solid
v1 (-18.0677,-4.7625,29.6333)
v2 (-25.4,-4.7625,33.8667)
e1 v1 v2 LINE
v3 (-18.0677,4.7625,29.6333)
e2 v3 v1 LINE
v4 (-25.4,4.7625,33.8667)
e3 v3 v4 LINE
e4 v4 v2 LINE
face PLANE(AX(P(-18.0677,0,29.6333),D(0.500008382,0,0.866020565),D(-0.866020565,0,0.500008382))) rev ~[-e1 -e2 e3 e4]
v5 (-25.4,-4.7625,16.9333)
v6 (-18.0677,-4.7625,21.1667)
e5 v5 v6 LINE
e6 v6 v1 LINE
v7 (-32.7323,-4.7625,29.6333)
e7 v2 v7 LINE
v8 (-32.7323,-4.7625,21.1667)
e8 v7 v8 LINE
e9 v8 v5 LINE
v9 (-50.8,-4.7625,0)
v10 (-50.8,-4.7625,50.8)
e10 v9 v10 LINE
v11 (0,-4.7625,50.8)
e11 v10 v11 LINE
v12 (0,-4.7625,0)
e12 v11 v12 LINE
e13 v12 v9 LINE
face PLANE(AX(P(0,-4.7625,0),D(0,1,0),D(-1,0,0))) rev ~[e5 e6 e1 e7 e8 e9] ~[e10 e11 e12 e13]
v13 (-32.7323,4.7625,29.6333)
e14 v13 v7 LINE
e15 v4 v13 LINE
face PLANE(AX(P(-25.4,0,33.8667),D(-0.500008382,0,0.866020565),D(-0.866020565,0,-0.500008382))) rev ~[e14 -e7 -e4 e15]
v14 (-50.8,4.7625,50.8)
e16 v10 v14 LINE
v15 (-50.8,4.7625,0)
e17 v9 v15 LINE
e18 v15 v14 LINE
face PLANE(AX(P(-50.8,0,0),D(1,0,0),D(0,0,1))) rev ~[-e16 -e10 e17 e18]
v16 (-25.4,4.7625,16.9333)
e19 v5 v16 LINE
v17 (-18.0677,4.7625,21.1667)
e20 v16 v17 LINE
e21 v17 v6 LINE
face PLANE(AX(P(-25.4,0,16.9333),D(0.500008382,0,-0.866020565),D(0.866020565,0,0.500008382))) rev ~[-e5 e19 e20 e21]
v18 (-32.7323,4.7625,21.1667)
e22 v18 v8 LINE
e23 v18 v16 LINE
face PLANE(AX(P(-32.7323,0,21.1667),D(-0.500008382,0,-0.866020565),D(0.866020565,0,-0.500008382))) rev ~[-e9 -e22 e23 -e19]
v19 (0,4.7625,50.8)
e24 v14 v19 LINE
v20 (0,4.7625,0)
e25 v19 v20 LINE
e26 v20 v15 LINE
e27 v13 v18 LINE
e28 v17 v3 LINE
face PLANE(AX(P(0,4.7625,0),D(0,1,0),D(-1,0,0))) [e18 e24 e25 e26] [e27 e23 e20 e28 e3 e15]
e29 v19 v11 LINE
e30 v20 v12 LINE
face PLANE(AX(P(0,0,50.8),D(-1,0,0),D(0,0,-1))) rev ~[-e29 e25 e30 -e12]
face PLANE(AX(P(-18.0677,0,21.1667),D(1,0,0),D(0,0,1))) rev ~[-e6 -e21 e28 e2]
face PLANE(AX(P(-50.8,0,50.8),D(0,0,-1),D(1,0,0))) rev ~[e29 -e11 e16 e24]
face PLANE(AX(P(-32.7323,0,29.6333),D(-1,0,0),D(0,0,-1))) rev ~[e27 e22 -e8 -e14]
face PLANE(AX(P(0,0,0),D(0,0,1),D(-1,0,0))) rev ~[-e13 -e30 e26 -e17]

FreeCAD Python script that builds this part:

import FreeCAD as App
import Part
import Sketcher
from FreeCAD import Vector
Q = App.Units.Quantity

doc = App.newDocument("Part")
body = doc.addObject("PartDesign::Body", "Body")

sketch1 = doc.addObject("Sketcher::SketchObject", "Sketch")
body.addObject(sketch1)
sketch1.AttachmentSupport = (doc.XZ_Plane, [""])
sketch1.MapMode = "FlatFace"
sketch1.addGeometry([
    Part.LineSegment(Vector(0, 0, 0), Vector(-51, 0, 0)),
    Part.LineSegment(Vector(-51, 0, 0), Vector(-51, 51, 0)),
    Part.LineSegment(Vector(-51, 51, 0), Vector(0, 51, 0)),
    Part.LineSegment(Vector(0, 51, 0), Vector(0, 0, 0)),
    Part.LineSegment(Vector(-33, 21, 0), Vector(-25, 17, 0)),
    Part.LineSegment(Vector(-25, 17, 0), Vector(-18, 21, 0)),
    Part.LineSegment(Vector(-18, 21, 0), Vector(-18, 30, 0)),
    Part.LineSegment(Vector(-18, 30, 0), Vector(-25, 34, 0)),
    Part.LineSegment(Vector(-25, 34, 0), Vector(-33, 30, 0)),
    Part.LineSegment(Vector(-33, 30, 0), Vector(-33, 21, 0)),
], False)
sketch1.addConstraint([
    Sketcher.Constraint("Coincident", 0, 2, 1, 1),
    Sketcher.Constraint("Coincident", 1, 2, 2, 1),
    Sketcher.Constraint("Coincident", 2, 2, 3, 1),
    Sketcher.Constraint("Coincident", 3, 2, 0, 1),
    Sketcher.Constraint("Coincident", 4, 2, 5, 1),
    Sketcher.Constraint("Coincident", 5, 2, 6, 1),
    Sketcher.Constraint("Coincident", 6, 2, 7, 1),
    Sketcher.Constraint("Coincident", 7, 2, 8, 1),
    Sketcher.Constraint("Coincident", 8, 2, 9, 1),
    Sketcher.Constraint("Coincident", 9, 2, 4, 1),
    Sketcher.Constraint("Horizontal", 0),
    Sketcher.Constraint("Vertical", 1),
    Sketcher.Constraint("Horizontal", 2),
    Sketcher.Constraint("Vertical", 3),
    Sketcher.Constraint("Vertical", 6),
    Sketcher.Constraint("Vertical", 9),
    Sketcher.Constraint("Coincident", 3, 2, -1, 1),
    Sketcher.Constraint("Parallel", 4, 7),
    Sketcher.Constraint("Parallel", 5, 8),
    Sketcher.Constraint("Horizontal", 6, 2, 8, 2),
    Sketcher.Constraint("Horizontal", 5, 2, 9, 2),
    Sketcher.Constraint("Vertical", 4, 2, 7, 2),
    Sketcher.Constraint("Equal", 2, 1),
    Sketcher.Constraint("DistanceX", 0, 2, 0, 1, Q("2 in")),
    Sketcher.Constraint("DistanceY", 4, 2, 6, 2, Q("0.5 in")),
    Sketcher.Constraint("DistanceX", 4, 2, -1, 1, Q("1 in")),
    Sketcher.Constraint("Angle", 4, Q("-30.0006 deg")),
    Sketcher.Constraint("DistanceY", 6, 1, 6, 2, 8.4666),
    Sketcher.Constraint("DistanceY", -1, 1, 4, 2, 16.9333),
])
pad1 = doc.addObject("PartDesign::Pad", "Pad")
body.addObject(pad1)
pad1.Profile = sketch1
pad1.Length = Q("0.375 in")
pad1.Midplane = True

doc.recompute()
